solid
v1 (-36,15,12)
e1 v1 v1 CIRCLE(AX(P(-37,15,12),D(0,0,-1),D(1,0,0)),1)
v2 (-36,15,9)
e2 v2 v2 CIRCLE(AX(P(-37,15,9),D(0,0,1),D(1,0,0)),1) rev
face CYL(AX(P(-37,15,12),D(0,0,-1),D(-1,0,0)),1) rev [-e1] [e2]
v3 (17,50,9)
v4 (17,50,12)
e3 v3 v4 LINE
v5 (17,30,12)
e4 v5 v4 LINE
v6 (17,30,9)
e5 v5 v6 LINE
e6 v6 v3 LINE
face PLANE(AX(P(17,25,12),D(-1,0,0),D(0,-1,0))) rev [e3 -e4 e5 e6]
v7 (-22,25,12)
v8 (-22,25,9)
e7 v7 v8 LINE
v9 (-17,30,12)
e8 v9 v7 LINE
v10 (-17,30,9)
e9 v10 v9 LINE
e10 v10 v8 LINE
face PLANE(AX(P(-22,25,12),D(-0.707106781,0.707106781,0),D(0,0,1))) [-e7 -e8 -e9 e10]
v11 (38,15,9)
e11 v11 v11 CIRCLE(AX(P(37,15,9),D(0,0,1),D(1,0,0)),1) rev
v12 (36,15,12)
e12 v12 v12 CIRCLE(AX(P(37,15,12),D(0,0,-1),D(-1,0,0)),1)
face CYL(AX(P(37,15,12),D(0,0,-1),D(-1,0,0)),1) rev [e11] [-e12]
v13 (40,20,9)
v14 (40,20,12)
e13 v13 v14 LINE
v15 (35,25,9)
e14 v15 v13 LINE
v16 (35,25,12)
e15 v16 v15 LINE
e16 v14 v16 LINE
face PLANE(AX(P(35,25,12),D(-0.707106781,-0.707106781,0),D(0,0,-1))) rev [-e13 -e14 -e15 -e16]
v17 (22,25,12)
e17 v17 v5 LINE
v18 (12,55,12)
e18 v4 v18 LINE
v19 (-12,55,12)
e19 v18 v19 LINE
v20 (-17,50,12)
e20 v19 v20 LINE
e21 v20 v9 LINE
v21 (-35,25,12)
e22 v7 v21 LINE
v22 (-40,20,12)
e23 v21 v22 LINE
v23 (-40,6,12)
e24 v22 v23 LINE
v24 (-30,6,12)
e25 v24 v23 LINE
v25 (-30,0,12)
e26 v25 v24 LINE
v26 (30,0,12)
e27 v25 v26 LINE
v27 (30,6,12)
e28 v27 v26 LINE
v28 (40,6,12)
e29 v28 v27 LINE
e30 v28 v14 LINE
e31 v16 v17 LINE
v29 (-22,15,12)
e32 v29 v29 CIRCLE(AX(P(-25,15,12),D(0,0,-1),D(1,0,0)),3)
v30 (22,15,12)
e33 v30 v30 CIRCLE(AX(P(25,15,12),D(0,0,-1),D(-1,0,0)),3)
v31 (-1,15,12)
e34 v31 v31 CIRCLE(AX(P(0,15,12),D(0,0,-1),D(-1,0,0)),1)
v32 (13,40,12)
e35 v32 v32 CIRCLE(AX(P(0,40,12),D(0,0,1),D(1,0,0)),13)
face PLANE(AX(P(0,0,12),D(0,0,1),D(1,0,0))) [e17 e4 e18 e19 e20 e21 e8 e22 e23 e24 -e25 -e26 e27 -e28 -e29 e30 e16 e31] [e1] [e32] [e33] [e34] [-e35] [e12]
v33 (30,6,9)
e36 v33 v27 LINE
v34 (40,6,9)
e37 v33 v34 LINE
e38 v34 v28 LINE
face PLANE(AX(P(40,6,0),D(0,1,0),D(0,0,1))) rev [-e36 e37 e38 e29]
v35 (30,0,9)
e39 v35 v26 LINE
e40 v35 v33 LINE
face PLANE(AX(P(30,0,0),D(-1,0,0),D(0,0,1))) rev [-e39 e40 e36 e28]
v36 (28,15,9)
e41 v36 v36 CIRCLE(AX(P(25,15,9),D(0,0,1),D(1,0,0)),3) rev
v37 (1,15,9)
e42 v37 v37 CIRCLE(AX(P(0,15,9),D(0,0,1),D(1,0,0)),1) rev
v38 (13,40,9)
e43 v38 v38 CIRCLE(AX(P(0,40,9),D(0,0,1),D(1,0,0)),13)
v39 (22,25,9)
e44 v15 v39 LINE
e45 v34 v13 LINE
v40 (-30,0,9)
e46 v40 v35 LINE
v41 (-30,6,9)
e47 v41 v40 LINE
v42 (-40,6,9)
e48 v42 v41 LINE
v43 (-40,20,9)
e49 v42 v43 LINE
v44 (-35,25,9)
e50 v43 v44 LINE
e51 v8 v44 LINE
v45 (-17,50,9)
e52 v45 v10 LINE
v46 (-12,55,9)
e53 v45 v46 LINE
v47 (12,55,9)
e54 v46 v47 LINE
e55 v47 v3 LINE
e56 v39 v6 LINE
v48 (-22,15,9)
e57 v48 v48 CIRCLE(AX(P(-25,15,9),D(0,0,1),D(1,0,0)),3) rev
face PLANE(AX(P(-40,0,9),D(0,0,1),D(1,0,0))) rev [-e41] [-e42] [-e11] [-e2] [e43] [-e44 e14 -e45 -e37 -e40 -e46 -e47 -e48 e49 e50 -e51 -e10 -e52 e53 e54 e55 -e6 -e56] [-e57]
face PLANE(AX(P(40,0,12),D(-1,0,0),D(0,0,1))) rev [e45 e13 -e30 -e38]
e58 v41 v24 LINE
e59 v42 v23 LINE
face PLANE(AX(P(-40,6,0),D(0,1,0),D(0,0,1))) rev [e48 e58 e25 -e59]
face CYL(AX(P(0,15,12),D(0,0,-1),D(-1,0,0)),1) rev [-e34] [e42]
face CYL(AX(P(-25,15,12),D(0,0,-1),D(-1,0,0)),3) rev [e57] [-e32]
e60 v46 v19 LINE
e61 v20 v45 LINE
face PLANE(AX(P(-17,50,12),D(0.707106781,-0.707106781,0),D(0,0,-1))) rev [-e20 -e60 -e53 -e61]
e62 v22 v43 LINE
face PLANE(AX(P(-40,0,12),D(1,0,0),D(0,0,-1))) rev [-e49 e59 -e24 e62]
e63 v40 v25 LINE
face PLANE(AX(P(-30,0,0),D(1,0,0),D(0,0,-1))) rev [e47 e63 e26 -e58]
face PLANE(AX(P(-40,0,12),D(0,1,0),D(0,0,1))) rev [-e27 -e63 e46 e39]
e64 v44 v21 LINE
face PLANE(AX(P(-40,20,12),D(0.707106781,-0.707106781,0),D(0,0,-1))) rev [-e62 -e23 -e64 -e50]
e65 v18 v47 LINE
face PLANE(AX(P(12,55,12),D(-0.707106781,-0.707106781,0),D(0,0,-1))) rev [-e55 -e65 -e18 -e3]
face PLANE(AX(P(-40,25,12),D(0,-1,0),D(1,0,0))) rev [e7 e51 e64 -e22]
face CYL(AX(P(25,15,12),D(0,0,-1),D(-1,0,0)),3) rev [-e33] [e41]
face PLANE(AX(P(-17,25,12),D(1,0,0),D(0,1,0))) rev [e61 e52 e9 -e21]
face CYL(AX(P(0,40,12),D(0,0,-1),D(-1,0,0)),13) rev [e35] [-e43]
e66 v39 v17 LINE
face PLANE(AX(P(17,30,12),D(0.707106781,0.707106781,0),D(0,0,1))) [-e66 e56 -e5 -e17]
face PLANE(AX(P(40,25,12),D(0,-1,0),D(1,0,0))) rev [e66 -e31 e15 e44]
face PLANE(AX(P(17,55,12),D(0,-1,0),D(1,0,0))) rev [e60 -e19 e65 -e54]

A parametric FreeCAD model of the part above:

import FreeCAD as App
import Part
import Sketcher

V = App.Vector
Q = App.Units.Quantity


def edges_at(feature, points):
    """Names of the edges that pass closest to the given points."""
    edges = feature.Shape.Edges
    near = lambda p: min(range(len(edges)), key=lambda i: edges[i].distToShape(Part.Vertex(*p))[0])
    return sorted({f"Edge{near(p) + 1}" for p in points})


def add_polygon(sketch, points):
    """Adds a closed chain of lines whose ends are joined by coincident constraints."""
    first, n = sketch.GeometryCount, len(points)
    for a, b in zip(points, points[1:] + points[:1]):
        sketch.addGeometry(Part.LineSegment(App.Vector(*a, 0), App.Vector(*b, 0)), False)
    for i in range(n):
        sketch.addConstraint(Sketcher.Constraint("Coincident", first + i, 2, first + (i + 1) % n, 1))

doc = App.newDocument("Part")
body = doc.addObject("PartDesign::Body", "Body")

sketch1 = doc.addObject("Sketcher::SketchObject", "Sketch")
body.addObject(sketch1)
sketch1.AttachmentSupport = (doc.XY_Plane, [""])
sketch1.MapMode = "FlatFace"
add_polygon(sketch1, [(-40, 0), (40, 0), (40, 25), (17, 25), (17, 55), (-17, 55), (-17, 25), (-40, 25)])
sketch1.addGeometry(Part.Circle(V(0, 40, 0), V(0, 0, 1), 13), False)
sketch1.addConstraint([
    Sketcher.Constraint("Horizontal", 0),
    Sketcher.Constraint("Vertical", 1),
    Sketcher.Constraint("Horizontal", 2),
    Sketcher.Constraint("Vertical", 3),
    Sketcher.Constraint("Horizontal", 4),
    Sketcher.Constraint("Vertical", 5),
    Sketcher.Constraint("Horizontal", 6),
    Sketcher.Constraint("Vertical", 7),
    Sketcher.Constraint("Symmetric", 0, 2, 7, 2, -1, 1),
    Sketcher.Constraint("Symmetric", 2, 2, 5, 2, -2),
    Sketcher.Constraint("PointOnObject", 8, 3, -2),
    Sketcher.Constraint("Diameter", 8, Q("26 mm")),
    Sketcher.Constraint("DistanceX", 0, 1, 0, 2, Q("80 mm")),
    Sketcher.Constraint("DistanceX", 2, 2, 2, 1, Q("23 mm")),
    Sketcher.Constraint("DistanceY", 1, 1, 1, 2, Q("25 mm")),
    Sketcher.Constraint("DistanceY", 3, 1, 3, 2, Q("30 mm")),
    Sketcher.Constraint("DistanceY", -1, 1, 8, 3, Q("40 mm")),
])
pad1 = doc.addObject("PartDesign::Pad", "Pad")
body.addObject(pad1)
pad1.Profile = sketch1
pad1.Length = 12

sketch2 = doc.addObject("Sketcher::SketchObject", "Sketch001")
body.addObject(sketch2)
sketch2.AttachmentSupport = (doc.XY_Plane, [""])
sketch2.MapMode = "FlatFace"
sketch2.addGeometry([
    Part.Circle(V(0, 40, 0), V(0, 0, 1), 13),
    Part.Circle(V(0, 40, 0), V(0, 0, 1), 6),
], False)
sketch2.addConstraint([
    Sketcher.Constraint("Coincident", 1, 3, 0, 3),
    Sketcher.Constraint("PointOnObject", 0, 3, -2),
    Sketcher.Constraint("Diameter", 0, Q("26 mm")),
    Sketcher.Constraint("Diameter", 1, Q("11 mm")),
    Sketcher.Constraint("DistanceY", -1, 1, 0, 3, Q("40 mm")),
])
pad2 = doc.addObject("PartDesign::Pad", "Pad001")
body.addObject(pad2)
pad2.Profile = sketch2
pad2.Length = 3

sketch3 = doc.addObject("Sketcher::SketchObject", "Sketch002")
body.addObject(sketch3)
sketch3.AttachmentSupport = (doc.XY_Plane, [""])
sketch3.MapMode = "FlatFace"
sketch3.addGeometry([
    Part.Circle(V(25, 15, 0), V(0, 0, 1), 8),
    Part.Circle(V(-25, 15, 0), V(0, 0, 1), 8),
], False)
sketch3.addConstraint([
    Sketcher.Constraint("Equal", 0, 1),
    Sketcher.Constraint("Symmetric", 0, 3, 1, 3, -2),
    Sketcher.Constraint("Diameter", 0, Q("16 mm")),
    Sketcher.Constraint("DistanceX", -1, 1, 0, 3, Q("25 mm")),
    Sketcher.Constraint("DistanceY", -1, 1, 0, 3, Q("15 mm")),
])
pocket1 = doc.addObject("PartDesign::Pocket", "Pocket")
body.addObject(pocket1)
pocket1.Profile = sketch3
pocket1.Length = 6
pocket1.Reversed = True

sketch4 = doc.addObject("Sketcher::SketchObject", "Sketch003")
body.addObject(sketch4)
sketch4.AttachmentSupport = (doc.XY_Plane, [""])
sketch4.MapMode = "FlatFace"
sketch4.AttachmentOffset = App.Placement(V(0, 0, 6), App.Rotation())
sketch4.addGeometry([
    Part.Circle(V(25, 15, 0), V(0, 0, 1), 3),
    Part.Circle(V(-25, 15, 0), V(0, 0, 1), 3),
], False)
sketch4.addConstraint([
    Sketcher.Constraint("Equal", 0, 1),
    Sketcher.Constraint("Symmetric", 0, 3, 1, 3, -2),
    Sketcher.Constraint("Diameter", 0, Q("6 mm")),
    Sketcher.Constraint("DistanceX", -1, 1, 0, 3, Q("25 mm")),
    Sketcher.Constraint("DistanceY", -1, 1, 0, 3, Q("15 mm")),
])
pocket2 = doc.addObject("PartDesign::Pocket", "Pocket001")
body.addObject(pocket2)
pocket2.Profile = sketch4
pocket2.Type = "ThroughAll"
pocket2.Reversed = True

sketch5 = doc.addObject("Sketcher::SketchObject", "Sketch004")
body.addObject(sketch5)
sketch5.AttachmentSupport = (doc.XY_Plane, [""])
sketch5.MapMode = "FlatFace"
add_polygon(sketch5, [(30, 6), (30, 0), (40, 0), (40, 6)])
add_polygon(sketch5, [(-40, 6), (-40, 0), (-30, 0), (-30, 6)])
sketch5.addConstraint([
    Sketcher.Constraint("Vertical", 0),
    Sketcher.Constraint("Horizontal", 1),
    Sketcher.Constraint("Vertical", 2),
    Sketcher.Constraint("Horizontal", 3),
    Sketcher.Constraint("Vertical", 4),
    Sketcher.Constraint("Horizontal", 5),
    Sketcher.Constraint("Vertical", 6),
    Sketcher.Constraint("Horizontal", 7),
    Sketcher.Constraint("Symmetric", 1, 2, 4, 2, -1, 1),
    Sketcher.Constraint("Symmetric", 0, 2, 5, 2, -2),
    Sketcher.Constraint("Horizontal", 3, 2, 6, 2),
    Sketcher.Constraint("DistanceX", 1, 1, 1, 2, Q("10 mm")),
    Sketcher.Constraint("DistanceY", 0, 2, 0, 1, Q("6 mm")),
    Sketcher.Constraint("DistanceX", -1, 1, 0, 2, Q("30 mm")),
])
pocket3 = doc.addObject("PartDesign::Pocket", "Pocket002")
body.addObject(pocket3)
pocket3.Profile = sketch5
pocket3.Length = 12
pocket3.Reversed = True
doc.recompute()

chamfer = doc.addObject("PartDesign::Chamfer", "Chamfer")
body.addObject(chamfer)
chamfer.Base = (pocket3, edges_at(pocket3, [
    (-17, 55, 6),
    (17, 55, 6),
    (17, 25, 6),
    (40, 25, 6),
    (-40, 25, 6),
    (-17, 25, 6),
]))
chamfer.Size = 5

sketch6 = doc.addObject("Sketcher::SketchObject", "Sketch005")
body.addObject(sketch6)
sketch6.AttachmentSupport = (doc.XY_Plane, [""])
sketch6.MapMode = "FlatFace"
sketch6.addGeometry([
    Part.Circle(V(10, 45, 0), V(0, 0, 1), 1),
    Part.Circle(V(-10, 45, 0), V(0, 0, 1), 1),
    Part.Circle(V(37, 15, 0), V(0, 0, 1), 1),
    Part.Circle(V(-37, 15, 0), V(0, 0, 1), 1),
    Part.Circle(V(0, 15, 0), V(0, 0, 1), 1),
], False)
sketch6.addConstraint([
    Sketcher.Constraint("Equal", 0, 1),
    Sketcher.Constraint("Equal", 1, 2),
    Sketcher.Constraint("Equal", 2, 3),
    Sketcher.Constraint("Equal", 3, 4),
    Sketcher.Constraint("Symmetric", 0, 3, 1, 3, -2),
    Sketcher.Constraint("Symmetric", 2, 3, 3, 3, -2),
    Sketcher.Constraint("PointOnObject", 4, 3, -2),
    Sketcher.Constraint("Horizontal", 3, 3, 4, 3),
    Sketcher.Constraint("Diameter", 0, Q("2 mm")),
    Sketcher.Constraint("DistanceX", -1, 1, 0, 3, Q("10 mm")),
    Sketcher.Constraint("DistanceY", -1, 1, 0, 3, Q("45 mm")),
    Sketcher.Constraint("DistanceX", -1, 1, 2, 3, Q("37 mm")),
    Sketcher.Constraint("DistanceY", -1, 1, 2, 3, Q("15 mm")),
])
pocket4 = doc.addObject("PartDesign::Pocket", "Pocket003")
body.addObject(pocket4)
pocket4.Profile = sketch6
pocket4.Length = 12
pocket4.Reversed = True

sketch7 = doc.addObject("Sketcher::SketchObject", "Sketch006")
body.addObject(sketch7)
sketch7.AttachmentSupport = (doc.XZ_Plane, [""])
sketch7.MapMode = "FlatFace"
sketch7.AttachmentOffset = App.Placement(V(0, 0, -55), App.Rotation())
add_polygon(sketch7, [(-40, 0), (-40, 9), (40, 9), (40, 0)])
sketch7.addConstraint([
    Sketcher.Constraint("Vertical", 0),
    Sketcher.Constraint("Horizontal", 1),
    Sketcher.Constraint("Vertical", 2),
    Sketcher.Constraint("Horizontal", 3),
    Sketcher.Constraint("Symmetric", 2, 2, 3, 2, -1, 1),
    Sketcher.Constraint("DistanceX", 1, 1, 1, 2, Q("80 mm")),
    Sketcher.Constraint("DistanceY", 0, 1, 0, 2, Q("9 mm")),
])
pocket5 = doc.addObject("PartDesign::Pocket", "Pocket004")
body.addObject(pocket5)
pocket5.Profile = sketch7
pocket5.Type = "ThroughAll"
pocket5.Reversed = True

doc.recompute()
